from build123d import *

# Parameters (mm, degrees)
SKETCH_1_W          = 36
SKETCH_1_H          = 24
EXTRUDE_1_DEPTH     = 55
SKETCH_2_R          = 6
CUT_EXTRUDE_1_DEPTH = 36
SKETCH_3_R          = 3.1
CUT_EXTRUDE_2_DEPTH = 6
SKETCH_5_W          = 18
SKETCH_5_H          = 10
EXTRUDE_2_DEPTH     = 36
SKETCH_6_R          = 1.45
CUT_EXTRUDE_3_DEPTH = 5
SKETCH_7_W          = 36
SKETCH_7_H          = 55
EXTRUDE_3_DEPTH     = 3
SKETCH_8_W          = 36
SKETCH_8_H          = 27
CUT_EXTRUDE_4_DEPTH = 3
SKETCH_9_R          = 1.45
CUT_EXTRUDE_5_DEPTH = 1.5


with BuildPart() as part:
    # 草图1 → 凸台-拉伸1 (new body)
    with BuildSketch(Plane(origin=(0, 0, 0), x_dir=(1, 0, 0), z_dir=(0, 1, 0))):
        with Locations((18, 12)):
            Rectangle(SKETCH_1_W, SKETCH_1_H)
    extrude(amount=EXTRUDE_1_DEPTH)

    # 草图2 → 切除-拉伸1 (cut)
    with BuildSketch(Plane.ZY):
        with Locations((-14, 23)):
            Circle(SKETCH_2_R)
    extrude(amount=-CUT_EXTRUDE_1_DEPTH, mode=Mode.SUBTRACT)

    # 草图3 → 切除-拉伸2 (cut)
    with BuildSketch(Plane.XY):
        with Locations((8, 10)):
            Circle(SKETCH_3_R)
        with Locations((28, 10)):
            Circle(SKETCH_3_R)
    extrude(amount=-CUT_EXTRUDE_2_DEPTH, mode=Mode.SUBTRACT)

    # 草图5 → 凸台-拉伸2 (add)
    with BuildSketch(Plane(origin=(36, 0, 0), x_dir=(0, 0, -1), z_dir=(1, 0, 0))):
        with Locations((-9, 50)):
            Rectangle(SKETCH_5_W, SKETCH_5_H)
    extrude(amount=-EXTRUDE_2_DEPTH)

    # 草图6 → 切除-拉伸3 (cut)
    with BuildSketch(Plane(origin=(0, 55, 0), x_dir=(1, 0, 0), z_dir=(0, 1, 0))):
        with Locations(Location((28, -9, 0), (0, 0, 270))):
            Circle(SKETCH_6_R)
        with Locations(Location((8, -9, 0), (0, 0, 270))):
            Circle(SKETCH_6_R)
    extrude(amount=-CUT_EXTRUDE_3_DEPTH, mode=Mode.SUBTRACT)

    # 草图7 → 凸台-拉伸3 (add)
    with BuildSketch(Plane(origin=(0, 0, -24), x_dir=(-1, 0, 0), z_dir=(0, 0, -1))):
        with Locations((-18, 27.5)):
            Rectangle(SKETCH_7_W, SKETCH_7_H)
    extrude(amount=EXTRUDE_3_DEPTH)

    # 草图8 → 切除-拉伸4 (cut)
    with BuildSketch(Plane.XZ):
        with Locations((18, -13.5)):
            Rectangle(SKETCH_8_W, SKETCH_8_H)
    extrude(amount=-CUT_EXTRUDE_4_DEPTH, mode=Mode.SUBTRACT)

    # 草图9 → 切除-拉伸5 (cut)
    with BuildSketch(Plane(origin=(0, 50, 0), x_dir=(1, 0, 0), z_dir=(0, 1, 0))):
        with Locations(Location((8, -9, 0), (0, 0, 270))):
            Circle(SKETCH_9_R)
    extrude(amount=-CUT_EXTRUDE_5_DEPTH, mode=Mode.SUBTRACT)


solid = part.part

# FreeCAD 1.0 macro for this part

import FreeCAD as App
import Part
import Sketcher

V = App.Vector
Q = App.Units.Quantity


def add_polygon(sketch, points):
    """Adds a closed chain of lines whose ends are joined by coincident constraints."""
    first, n = sketch.GeometryCount, len(points)
    for a, b in zip(points, points[1:] + points[:1]):
        sketch.addGeometry(Part.LineSegment(App.Vector(*a, 0), App.Vector(*b, 0)), False)
    for i in range(n):
        sketch.addConstraint(Sketcher.Constraint("Coincident", first + i, 2, first + (i + 1) % n, 1))

doc = App.newDocument("Part")
body = doc.addObject("PartDesign::Body", "Body")

sketch1 = doc.addObject("Sketcher::SketchObject", "Sketch")
body.addObject(sketch1)
sketch1.AttachmentSupport = (doc.XZ_Plane, [""])
sketch1.MapMode = "FlatFace"
add_polygon(sketch1, [(0, -24), (0, 0), (36, 0), (36, -24)])
sketch1.addConstraint([
    Sketcher.Constraint("Vertical", 0),
    Sketcher.Constraint("Horizontal", 1),
    Sketcher.Constraint("Vertical", 2),
    Sketcher.Constraint("Horizontal", 3),
    Sketcher.Constraint("Coincident", 0, 2, -1, 1),
    Sketcher.Constraint("DistanceX", 1, 1, 1, 2, Q("36 mm")),
    Sketcher.Constraint("DistanceY", 0, 1, 0, 2, Q("24 mm")),
])
pad1 = doc.addObject("PartDesign::Pad", "Pad")
body.addObject(pad1)
pad1.Profile = sketch1
pad1.Length = 55
pad1.Reversed = True

sketch2 = doc.addObject("Sketcher::SketchObject", "Sketch001")
body.addObject(sketch2)
sketch2.AttachmentSupport = (doc.YZ_Plane, [""])
sketch2.MapMode = "FlatFace"
sketch2.addGeometry(Part.Circle(V(23, -14, 0), V(0, 0, 1), 6), False)
sketch2.addConstraint([
    Sketcher.Constraint("Diameter", 0, Q("12 mm")),
    Sketcher.Constraint("DistanceX", -1, 1, 0, 3, Q("23 mm")),
    Sketcher.Constraint("DistanceY", 0, 3, -1, 1, Q("14 mm")),
])
pocket1 = doc.addObject("PartDesign::Pocket", "Pocket")
body.addObject(pocket1)
pocket1.Profile = sketch2
pocket1.Length = 36
pocket1.Reversed = True

sketch3 = doc.addObject("Sketcher::SketchObject", "Sketch002")
body.addObject(sketch3)
sketch3.AttachmentSupport = (doc.XY_Plane, [""])
sketch3.MapMode = "FlatFace"
sketch3.addGeometry([
    Part.Circle(V(8, 10, 0), V(0, 0, 1), 3.1),
    Part.Circle(V(28, 10, 0), V(0, 0, 1), 3.1),
], False)
sketch3.addConstraint([
    Sketcher.Constraint("Equal", 0, 1),
    Sketcher.Constraint("Horizontal", 0, 3, 1, 3),
    Sketcher.Constraint("Diameter", 0, Q("6.2 mm")),
    Sketcher.Constraint("DistanceX", -1, 1, 0, 3, Q("8 mm")),
    Sketcher.Constraint("DistanceY", -1, 1, 0, 3, Q("10 mm")),
    Sketcher.Constraint("DistanceX", -1, 1, 1, 3, Q("28 mm")),
])
pocket2 = doc.addObject("PartDesign::Pocket", "Pocket001")
body.addObject(pocket2)
pocket2.Profile = sketch3
pocket2.Length = 6

sketch4 = doc.addObject("Sketcher::SketchObject", "Sketch003")
body.addObject(sketch4)
sketch4.AttachmentSupport = (doc.YZ_Plane, [""])
sketch4.MapMode = "FlatFace"
sketch4.AttachmentOffset = App.Placement(V(0, 0, 36), App.Rotation())
add_polygon(sketch4, [(55, 18), (45, 18), (45, 0), (55, 0)])
sketch4.addConstraint([
    Sketcher.Constraint("Horizontal", 0),
    Sketcher.Constraint("Vertical", 1),
    Sketcher.Constraint("Horizontal", 2),
    Sketcher.Constraint("Vertical", 3),
    Sketcher.Constraint("PointOnObject", 1, 2, -1),
    Sketcher.Constraint("DistanceX", 0, 2, 0, 1, Q("10 mm")),
    Sketcher.Constraint("DistanceY", 1, 2, 1, 1, Q("18 mm")),
    Sketcher.Constraint("DistanceX", -1, 1, 0, 2, Q("45 mm")),
])
pad2 = doc.addObject("PartDesign::Pad", "Pad001")
body.addObject(pad2)
pad2.Profile = sketch4
pad2.Length = 36
pad2.Reversed = True

sketch5 = doc.addObject("Sketcher::SketchObject", "Sketch004")
body.addObject(sketch5)
sketch5.AttachmentSupport = (doc.XZ_Plane, [""])
sketch5.MapMode = "FlatFace"
sketch5.AttachmentOffset = App.Placement(V(0, 0, -55), App.Rotation())
sketch5.addGeometry([
    Part.Circle(V(28, 9, 0), V(0, 0, 1), 1.4),
    Part.Circle(V(8, 9, 0), V(0, 0, 1), 1.4),
], False)
sketch5.addConstraint([
    Sketcher.Constraint("Equal", 0, 1),
    Sketcher.Constraint("Horizontal", 0, 3, 1, 3),
    Sketcher.Constraint("Diameter", 0, Q("2.9 mm")),
    Sketcher.Constraint("DistanceX", -1, 1, 0, 3, Q("28 mm")),
    Sketcher.Constraint("DistanceY", -1, 1, 0, 3, Q("9 mm")),
    Sketcher.Constraint("DistanceX", -1, 1, 1, 3, Q("8 mm")),
])
pocket3 = doc.addObject("PartDesign::Pocket", "Pocket002")
body.addObject(pocket3)
pocket3.Profile = sketch5
pocket3.Length = 5
pocket3.Reversed = True

sketch6 = doc.addObject("Sketcher::SketchObject", "Sketch005")
body.addObject(sketch6)
sketch6.AttachmentSupport = (doc.XY_Plane, [""])
sketch6.MapMode = "FlatFace"
sketch6.AttachmentOffset = App.Placement(V(0, 0, -24), App.Rotation())
add_polygon(sketch6, [(36, 55), (36, 0), (0, 0), (0, 55)])
sketch6.addConstraint([
    Sketcher.Constraint("Vertical", 0),
    Sketcher.Constraint("Horizontal", 1),
    Sketcher.Constraint("Vertical", 2),
    Sketcher.Constraint("Horizontal", 3),
    Sketcher.Constraint("Coincident", 1, 2, -1, 1),
    Sketcher.Constraint("DistanceX", 1, 2, 1, 1, Q("36 mm")),
    Sketcher.Constraint("DistanceY", 0, 2, 0, 1, Q("55 mm")),
])
pad3 = doc.addObject("PartDesign::Pad", "Pad002")
body.addObject(pad3)
pad3.Profile = sketch6
pad3.Length = 3
pad3.Reversed = True

sketch7 = doc.addObject("Sketcher::SketchObject", "Sketch006")
body.addObject(sketch7)
sketch7.AttachmentSupport = (doc.XZ_Plane, [""])
sketch7.MapMode = "FlatFace"
add_polygon(sketch7, [(0, 0), (0, -27), (36, -27), (36, 0)])
sketch7.addConstraint([
    Sketcher.Constraint("Vertical", 0),
    Sketcher.Constraint("Horizontal", 1),
    Sketcher.Constraint("Vertical", 2),
    Sketcher.Constraint("Horizontal", 3),
    Sketcher.Constraint("Coincident", 3, 2, -1, 1),
    Sketcher.Constraint("DistanceX", 1, 1, 1, 2, Q("36 mm")),
    Sketcher.Constraint("DistanceY", 0, 2, 0, 1, Q("27 mm")),
])
pocket4 = doc.addObject("PartDesign::Pocket", "Pocket003")
body.addObject(pocket4)
pocket4.Profile = sketch7
pocket4.Length = 3

sketch8 = doc.addObject("Sketcher::SketchObject", "Sketch007")
body.addObject(sketch8)
sketch8.AttachmentSupport = (doc.XZ_Plane, [""])
sketch8.MapMode = "FlatFace"
sketch8.AttachmentOffset = App.Placement(V(0, 0, -50), App.Rotation())
sketch8.addGeometry(Part.Circle(V(8, 9, 0), V(0, 0, 1), 1.4), False)
sketch8.addConstraint([
    Sketcher.Constraint("Diameter", 0, Q("2.9 mm")),
    Sketcher.Constraint("DistanceX", -1, 1, 0, 3, Q("8 mm")),
    Sketcher.Constraint("DistanceY", -1, 1, 0, 3, Q("9 mm")),
])
pocket5 = doc.addObject("PartDesign::Pocket", "Pocket004")
body.addObject(pocket5)
pocket5.Profile = sketch8
pocket5.Length = 1.5
pocket5.Reversed = True

doc.recompute()
